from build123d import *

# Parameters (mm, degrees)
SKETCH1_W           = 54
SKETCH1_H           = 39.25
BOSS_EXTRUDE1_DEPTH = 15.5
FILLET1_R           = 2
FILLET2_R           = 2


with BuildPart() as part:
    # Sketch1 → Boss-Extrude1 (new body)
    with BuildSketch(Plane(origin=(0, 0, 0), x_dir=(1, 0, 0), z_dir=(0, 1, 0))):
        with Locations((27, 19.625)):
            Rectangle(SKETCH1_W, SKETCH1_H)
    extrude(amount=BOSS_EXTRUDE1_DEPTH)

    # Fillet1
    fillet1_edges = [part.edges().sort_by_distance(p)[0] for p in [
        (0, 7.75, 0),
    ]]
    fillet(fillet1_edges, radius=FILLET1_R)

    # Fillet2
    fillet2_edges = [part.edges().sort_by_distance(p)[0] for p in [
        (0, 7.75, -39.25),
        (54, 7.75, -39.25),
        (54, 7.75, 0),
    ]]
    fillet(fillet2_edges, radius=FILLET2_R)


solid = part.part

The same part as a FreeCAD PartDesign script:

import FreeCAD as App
import Part
import Sketcher

V = App.Vector
Q = App.Units.Quantity


def edges_at(feature, points):
    """Names of the edges that pass closest to the given points."""
    edges = feature.Shape.Edges
    near = lambda p: min(range(len(edges)), key=lambda i: edges[i].distToShape(Part.Vertex(*p))[0])
    return sorted({f"Edge{near(p) + 1}" for p in points})


def add_polygon(sketch, points):
    """Adds a closed chain of lines whose ends are joined by coincident constraints."""
    first, n = sketch.GeometryCount, len(points)
    for a, b in zip(points, points[1:] + points[:1]):
        sketch.addGeometry(Part.LineSegment(App.Vector(*a, 0), App.Vector(*b, 0)), False)
    for i in range(n):
        sketch.addConstraint(Sketcher.Constraint("Coincident", first + i, 2, first + (i + 1) % n, 1))

doc = App.newDocument("Part")
params = doc.addObject("Spreadsheet::Sheet", "Params")
for row, (alias, value) in enumerate([
    ("sketch1_width", "54 mm"),
    ("sketch1_height", "39.25 mm"),
    ("pad1_length", "15.5 mm"),
    ("fillet_radius", "2 mm"),
    ("fillet2_radius", "2 mm"),
], start=1):
    params.set(f"A{row}", alias)
    params.set(f"B{row}", "=" + value)
    params.setAlias(f"B{row}", alias)

body = doc.addObject("PartDesign::Body", "Body")

sketch1 = body.newObject("Sketcher::SketchObject", "Sketch")
sketch1.AttachmentSupport = (doc.getObject("XZ_Plane"), [""])
sketch1.MapMode = "FlatFace"
add_polygon(sketch1, [(0, -39), (0, 0), (54, 0), (54, -39)])
sketch1.addConstraint([
    Sketcher.Constraint("Vertical", 0),
    Sketcher.Constraint("Horizontal", 1),
    Sketcher.Constraint("Vertical", 2),
    Sketcher.Constraint("Horizontal", 3),
    Sketcher.Constraint("Coincident", 0, 2, -1, 1),
    Sketcher.Constraint("DistanceX", 1, 1, 1, 2, Q("54 mm")),
    Sketcher.Constraint("DistanceY", 0, 1, 0, 2, Q("39.25 mm")),
])
sketch1.setExpression("Constraints[9]", "Params.sketch1_width")
sketch1.setExpression("Constraints[10]", "Params.sketch1_height")
pad1 = body.newObject("PartDesign::Pad", "Pad")
pad1.Profile = sketch1
pad1.setExpression("Length", "Params.pad1_length")
pad1.Reversed = True
doc.recompute()

fillet = body.newObject("PartDesign::Fillet", "Fillet")
fillet.Base = (pad1, edges_at(pad1, [(0, 7.75, 0)]))
fillet.setExpression("Radius", "Params.fillet_radius")
doc.recompute()

fillet2 = body.newObject("PartDesign::Fillet", "Fillet001")
fillet2.Base = (fillet, edges_at(fillet, [(0, 7.75, -39.25), (54, 7.75, -39.25), (54, 7.75, 0)]))
fillet2.setExpression("Radius", "Params.fillet2_radius")

doc.recompute()
